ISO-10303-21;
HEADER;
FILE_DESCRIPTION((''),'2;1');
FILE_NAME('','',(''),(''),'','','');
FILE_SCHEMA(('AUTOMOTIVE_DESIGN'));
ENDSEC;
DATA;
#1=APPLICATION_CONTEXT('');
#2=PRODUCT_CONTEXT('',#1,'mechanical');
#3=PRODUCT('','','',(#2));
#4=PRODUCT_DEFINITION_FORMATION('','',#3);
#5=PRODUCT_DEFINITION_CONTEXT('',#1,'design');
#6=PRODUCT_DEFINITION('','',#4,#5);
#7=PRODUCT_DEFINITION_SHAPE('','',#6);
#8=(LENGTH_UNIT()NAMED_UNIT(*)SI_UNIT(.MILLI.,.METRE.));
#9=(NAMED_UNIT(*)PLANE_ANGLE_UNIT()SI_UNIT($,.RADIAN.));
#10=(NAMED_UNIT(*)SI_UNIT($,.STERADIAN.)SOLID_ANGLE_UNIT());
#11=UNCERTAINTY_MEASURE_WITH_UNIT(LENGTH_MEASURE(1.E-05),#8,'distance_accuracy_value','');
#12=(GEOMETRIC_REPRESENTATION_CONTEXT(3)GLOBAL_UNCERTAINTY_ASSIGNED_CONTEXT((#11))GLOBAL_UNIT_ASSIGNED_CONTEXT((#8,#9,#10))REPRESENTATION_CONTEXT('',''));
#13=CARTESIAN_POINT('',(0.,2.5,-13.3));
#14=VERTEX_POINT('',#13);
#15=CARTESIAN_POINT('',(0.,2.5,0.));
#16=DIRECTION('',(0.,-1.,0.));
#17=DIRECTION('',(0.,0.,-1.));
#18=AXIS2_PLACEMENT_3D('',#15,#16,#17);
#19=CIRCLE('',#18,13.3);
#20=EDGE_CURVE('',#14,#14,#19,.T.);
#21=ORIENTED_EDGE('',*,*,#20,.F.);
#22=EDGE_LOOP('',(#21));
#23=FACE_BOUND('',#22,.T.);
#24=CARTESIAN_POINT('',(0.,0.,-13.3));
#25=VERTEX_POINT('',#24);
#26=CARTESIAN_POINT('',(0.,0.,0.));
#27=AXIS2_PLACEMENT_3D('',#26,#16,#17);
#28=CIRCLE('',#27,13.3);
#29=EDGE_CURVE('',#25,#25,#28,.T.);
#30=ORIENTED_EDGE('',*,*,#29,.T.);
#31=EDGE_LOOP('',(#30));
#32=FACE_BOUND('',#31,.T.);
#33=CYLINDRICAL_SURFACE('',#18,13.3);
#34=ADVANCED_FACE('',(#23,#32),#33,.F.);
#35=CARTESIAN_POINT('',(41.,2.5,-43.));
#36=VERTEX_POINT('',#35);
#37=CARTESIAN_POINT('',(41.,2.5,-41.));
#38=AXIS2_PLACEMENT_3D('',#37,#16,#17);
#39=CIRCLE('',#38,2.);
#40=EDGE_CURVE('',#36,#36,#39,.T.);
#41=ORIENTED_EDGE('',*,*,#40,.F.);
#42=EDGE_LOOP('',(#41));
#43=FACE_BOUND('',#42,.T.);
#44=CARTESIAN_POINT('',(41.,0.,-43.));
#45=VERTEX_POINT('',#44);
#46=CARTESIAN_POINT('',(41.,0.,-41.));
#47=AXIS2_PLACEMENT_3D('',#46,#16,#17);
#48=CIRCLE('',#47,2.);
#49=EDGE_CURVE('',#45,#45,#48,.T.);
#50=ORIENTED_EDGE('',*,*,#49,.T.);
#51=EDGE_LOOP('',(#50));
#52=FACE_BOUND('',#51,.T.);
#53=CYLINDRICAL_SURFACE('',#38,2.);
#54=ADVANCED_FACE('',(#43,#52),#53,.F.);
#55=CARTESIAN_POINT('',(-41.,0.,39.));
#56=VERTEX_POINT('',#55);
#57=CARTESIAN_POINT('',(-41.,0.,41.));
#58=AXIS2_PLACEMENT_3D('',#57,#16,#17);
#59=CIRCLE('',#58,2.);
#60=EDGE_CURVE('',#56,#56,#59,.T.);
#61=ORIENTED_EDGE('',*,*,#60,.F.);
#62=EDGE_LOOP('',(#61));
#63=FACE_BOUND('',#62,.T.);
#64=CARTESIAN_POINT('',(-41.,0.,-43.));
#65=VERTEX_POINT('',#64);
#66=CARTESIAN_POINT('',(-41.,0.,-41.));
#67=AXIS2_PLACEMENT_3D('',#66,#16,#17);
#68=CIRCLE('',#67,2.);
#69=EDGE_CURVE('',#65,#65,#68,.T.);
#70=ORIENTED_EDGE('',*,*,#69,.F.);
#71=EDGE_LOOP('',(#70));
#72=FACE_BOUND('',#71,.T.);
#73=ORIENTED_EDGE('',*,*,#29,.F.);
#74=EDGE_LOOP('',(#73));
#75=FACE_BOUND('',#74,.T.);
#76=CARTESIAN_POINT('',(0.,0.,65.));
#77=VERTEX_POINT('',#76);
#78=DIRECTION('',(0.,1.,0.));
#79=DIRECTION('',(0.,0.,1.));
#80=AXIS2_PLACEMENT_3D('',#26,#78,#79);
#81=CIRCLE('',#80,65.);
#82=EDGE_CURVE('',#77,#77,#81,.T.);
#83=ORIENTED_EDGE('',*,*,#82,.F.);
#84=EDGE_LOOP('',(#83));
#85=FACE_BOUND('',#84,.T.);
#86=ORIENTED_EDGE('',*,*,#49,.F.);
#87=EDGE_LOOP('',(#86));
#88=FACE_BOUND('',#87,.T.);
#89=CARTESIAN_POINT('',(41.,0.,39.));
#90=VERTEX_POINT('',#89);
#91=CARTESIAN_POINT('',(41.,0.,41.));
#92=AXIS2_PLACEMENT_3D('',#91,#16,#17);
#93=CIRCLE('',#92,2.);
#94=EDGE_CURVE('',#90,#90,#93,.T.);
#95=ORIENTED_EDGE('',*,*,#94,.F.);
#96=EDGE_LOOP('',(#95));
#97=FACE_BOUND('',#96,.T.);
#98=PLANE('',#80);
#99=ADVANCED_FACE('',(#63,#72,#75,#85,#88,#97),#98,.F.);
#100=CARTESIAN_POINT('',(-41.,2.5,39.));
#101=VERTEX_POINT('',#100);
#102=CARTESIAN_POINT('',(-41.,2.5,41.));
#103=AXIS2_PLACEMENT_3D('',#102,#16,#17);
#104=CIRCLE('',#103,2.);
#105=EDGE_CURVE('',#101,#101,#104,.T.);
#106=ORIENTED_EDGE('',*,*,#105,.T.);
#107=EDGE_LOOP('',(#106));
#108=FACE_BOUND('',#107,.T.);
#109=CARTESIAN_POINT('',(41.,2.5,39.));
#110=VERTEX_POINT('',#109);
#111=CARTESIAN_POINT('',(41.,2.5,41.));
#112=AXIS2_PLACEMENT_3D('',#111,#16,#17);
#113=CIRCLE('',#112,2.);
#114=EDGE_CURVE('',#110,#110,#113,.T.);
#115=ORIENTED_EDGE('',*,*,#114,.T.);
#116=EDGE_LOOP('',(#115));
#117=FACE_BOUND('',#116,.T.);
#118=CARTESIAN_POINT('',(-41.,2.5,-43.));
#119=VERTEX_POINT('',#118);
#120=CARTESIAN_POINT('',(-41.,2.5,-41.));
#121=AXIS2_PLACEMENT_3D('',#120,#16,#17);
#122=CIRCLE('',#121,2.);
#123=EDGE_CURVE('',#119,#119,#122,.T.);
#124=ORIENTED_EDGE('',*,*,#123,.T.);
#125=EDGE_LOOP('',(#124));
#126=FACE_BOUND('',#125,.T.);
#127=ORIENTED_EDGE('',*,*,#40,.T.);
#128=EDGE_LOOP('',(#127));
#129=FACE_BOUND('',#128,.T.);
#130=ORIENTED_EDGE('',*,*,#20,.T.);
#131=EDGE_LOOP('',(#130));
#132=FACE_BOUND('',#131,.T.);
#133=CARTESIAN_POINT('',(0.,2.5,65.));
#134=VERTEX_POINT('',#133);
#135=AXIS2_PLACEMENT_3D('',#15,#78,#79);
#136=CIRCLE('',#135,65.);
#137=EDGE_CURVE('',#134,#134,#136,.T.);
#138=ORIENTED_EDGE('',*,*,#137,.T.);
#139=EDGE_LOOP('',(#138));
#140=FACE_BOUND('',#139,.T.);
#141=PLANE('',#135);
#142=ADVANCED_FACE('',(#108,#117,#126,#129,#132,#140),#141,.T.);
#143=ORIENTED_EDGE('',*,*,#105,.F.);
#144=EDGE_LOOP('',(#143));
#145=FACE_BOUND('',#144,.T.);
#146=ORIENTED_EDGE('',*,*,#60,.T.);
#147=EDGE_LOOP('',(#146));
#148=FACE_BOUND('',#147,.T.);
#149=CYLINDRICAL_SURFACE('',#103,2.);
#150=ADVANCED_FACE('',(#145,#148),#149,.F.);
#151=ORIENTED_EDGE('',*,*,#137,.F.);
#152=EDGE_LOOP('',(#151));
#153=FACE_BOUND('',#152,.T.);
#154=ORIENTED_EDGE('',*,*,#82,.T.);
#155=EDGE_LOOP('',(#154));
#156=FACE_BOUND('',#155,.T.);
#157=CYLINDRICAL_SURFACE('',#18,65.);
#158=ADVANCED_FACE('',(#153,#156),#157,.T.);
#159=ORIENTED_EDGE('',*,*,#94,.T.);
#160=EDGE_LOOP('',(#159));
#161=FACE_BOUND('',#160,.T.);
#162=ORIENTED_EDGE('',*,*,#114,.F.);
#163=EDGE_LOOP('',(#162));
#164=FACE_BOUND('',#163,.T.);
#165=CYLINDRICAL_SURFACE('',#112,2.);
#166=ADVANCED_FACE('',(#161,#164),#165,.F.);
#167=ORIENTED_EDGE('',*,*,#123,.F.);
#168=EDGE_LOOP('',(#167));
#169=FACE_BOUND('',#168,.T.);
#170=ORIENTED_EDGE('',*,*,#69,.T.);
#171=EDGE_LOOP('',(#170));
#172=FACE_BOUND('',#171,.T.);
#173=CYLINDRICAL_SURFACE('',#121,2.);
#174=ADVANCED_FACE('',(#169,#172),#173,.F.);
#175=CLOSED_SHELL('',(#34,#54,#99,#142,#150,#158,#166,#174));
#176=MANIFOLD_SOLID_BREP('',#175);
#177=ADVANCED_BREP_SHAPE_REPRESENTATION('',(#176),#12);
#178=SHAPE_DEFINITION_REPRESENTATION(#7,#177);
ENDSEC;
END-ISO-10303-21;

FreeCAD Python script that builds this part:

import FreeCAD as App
import Part
import Sketcher

V = App.Vector
Q = App.Units.Quantity

doc = App.newDocument("Part")
body = doc.addObject("PartDesign::Body", "Body")

# Sketch on XZ plane
sketch1 = body.newObject("Sketcher::SketchObject", "Sketch")
sketch1.AttachmentSupport = (doc.getObject("XZ_Plane"), [""])
sketch1.MapMode = "FlatFace"
sketch1.addGeometry(Part.Circle(V(0, 0, 0), V(0, 0, 1), 65), False)
sketch1.addConstraint([
    Sketcher.Constraint("Coincident", 0, 3, -1, 1),
    Sketcher.Constraint("Diameter", 0, Q("130 mm")),
])
pad1 = body.newObject("PartDesign::Pad", "Pad")
pad1.Profile = sketch1
pad1.Length = 2.5
pad1.Reversed = True

# Sketch on XZ plane
sketch2 = body.newObject("Sketcher::SketchObject", "Sketch001")
sketch2.AttachmentSupport = (doc.getObject("XZ_Plane"), [""])
sketch2.MapMode = "FlatFace"
sketch2.addGeometry(Part.Circle(V(0, 0, 0), V(0, 0, 1), 13), False)
sketch2.addConstraint([
    Sketcher.Constraint("Coincident", 0, 3, -1, 1),
    Sketcher.Constraint("Diameter", 0, Q("26.6 mm")),
])
pocket1 = body.newObject("PartDesign::Pocket", "Pocket")
pocket1.Profile = sketch2
pocket1.Type = "ThroughAll"

# Sketch on XZ plane
sketch3 = body.newObject("Sketcher::SketchObject", "Sketch002")
sketch3.AttachmentSupport = (doc.getObject("XZ_Plane"), [""])
sketch3.MapMode = "FlatFace"
sketch3.addGeometry([
    Part.Circle(V(-41, 41, 0), V(0, 0, 1), 2),
    Part.Circle(V(41, 41, 0), V(0, 0, 1), 2),
    Part.Circle(V(41, -41, 0), V(0, 0, 1), 2),
    Part.Circle(V(-41, -41, 0), V(0, 0, 1), 2),
], False)
sketch3.addConstraint([
    Sketcher.Constraint("Equal", 0, 1),
    Sketcher.Constraint("Equal", 1, 2),
    Sketcher.Constraint("Equal", 2, 3),
    Sketcher.Constraint("Symmetric", 0, 3, 2, 3, -1, 1),
    Sketcher.Constraint("Symmetric", 1, 3, 3, 3, -1, 1),
    Sketcher.Constraint("Symmetric", 0, 3, 1, 3, -2),
    Sketcher.Constraint("Diameter", 0, Q("4 mm")),
    Sketcher.Constraint("DistanceX", 0, 3, -1, 1, Q("41 mm")),
    Sketcher.Constraint("DistanceY", -1, 1, 0, 3, Q("41 mm")),
])
pocket2 = body.newObject("PartDesign::Pocket", "Pocket001")
pocket2.Profile = sketch3
pocket2.Type = "ThroughAll"

doc.recompute()
